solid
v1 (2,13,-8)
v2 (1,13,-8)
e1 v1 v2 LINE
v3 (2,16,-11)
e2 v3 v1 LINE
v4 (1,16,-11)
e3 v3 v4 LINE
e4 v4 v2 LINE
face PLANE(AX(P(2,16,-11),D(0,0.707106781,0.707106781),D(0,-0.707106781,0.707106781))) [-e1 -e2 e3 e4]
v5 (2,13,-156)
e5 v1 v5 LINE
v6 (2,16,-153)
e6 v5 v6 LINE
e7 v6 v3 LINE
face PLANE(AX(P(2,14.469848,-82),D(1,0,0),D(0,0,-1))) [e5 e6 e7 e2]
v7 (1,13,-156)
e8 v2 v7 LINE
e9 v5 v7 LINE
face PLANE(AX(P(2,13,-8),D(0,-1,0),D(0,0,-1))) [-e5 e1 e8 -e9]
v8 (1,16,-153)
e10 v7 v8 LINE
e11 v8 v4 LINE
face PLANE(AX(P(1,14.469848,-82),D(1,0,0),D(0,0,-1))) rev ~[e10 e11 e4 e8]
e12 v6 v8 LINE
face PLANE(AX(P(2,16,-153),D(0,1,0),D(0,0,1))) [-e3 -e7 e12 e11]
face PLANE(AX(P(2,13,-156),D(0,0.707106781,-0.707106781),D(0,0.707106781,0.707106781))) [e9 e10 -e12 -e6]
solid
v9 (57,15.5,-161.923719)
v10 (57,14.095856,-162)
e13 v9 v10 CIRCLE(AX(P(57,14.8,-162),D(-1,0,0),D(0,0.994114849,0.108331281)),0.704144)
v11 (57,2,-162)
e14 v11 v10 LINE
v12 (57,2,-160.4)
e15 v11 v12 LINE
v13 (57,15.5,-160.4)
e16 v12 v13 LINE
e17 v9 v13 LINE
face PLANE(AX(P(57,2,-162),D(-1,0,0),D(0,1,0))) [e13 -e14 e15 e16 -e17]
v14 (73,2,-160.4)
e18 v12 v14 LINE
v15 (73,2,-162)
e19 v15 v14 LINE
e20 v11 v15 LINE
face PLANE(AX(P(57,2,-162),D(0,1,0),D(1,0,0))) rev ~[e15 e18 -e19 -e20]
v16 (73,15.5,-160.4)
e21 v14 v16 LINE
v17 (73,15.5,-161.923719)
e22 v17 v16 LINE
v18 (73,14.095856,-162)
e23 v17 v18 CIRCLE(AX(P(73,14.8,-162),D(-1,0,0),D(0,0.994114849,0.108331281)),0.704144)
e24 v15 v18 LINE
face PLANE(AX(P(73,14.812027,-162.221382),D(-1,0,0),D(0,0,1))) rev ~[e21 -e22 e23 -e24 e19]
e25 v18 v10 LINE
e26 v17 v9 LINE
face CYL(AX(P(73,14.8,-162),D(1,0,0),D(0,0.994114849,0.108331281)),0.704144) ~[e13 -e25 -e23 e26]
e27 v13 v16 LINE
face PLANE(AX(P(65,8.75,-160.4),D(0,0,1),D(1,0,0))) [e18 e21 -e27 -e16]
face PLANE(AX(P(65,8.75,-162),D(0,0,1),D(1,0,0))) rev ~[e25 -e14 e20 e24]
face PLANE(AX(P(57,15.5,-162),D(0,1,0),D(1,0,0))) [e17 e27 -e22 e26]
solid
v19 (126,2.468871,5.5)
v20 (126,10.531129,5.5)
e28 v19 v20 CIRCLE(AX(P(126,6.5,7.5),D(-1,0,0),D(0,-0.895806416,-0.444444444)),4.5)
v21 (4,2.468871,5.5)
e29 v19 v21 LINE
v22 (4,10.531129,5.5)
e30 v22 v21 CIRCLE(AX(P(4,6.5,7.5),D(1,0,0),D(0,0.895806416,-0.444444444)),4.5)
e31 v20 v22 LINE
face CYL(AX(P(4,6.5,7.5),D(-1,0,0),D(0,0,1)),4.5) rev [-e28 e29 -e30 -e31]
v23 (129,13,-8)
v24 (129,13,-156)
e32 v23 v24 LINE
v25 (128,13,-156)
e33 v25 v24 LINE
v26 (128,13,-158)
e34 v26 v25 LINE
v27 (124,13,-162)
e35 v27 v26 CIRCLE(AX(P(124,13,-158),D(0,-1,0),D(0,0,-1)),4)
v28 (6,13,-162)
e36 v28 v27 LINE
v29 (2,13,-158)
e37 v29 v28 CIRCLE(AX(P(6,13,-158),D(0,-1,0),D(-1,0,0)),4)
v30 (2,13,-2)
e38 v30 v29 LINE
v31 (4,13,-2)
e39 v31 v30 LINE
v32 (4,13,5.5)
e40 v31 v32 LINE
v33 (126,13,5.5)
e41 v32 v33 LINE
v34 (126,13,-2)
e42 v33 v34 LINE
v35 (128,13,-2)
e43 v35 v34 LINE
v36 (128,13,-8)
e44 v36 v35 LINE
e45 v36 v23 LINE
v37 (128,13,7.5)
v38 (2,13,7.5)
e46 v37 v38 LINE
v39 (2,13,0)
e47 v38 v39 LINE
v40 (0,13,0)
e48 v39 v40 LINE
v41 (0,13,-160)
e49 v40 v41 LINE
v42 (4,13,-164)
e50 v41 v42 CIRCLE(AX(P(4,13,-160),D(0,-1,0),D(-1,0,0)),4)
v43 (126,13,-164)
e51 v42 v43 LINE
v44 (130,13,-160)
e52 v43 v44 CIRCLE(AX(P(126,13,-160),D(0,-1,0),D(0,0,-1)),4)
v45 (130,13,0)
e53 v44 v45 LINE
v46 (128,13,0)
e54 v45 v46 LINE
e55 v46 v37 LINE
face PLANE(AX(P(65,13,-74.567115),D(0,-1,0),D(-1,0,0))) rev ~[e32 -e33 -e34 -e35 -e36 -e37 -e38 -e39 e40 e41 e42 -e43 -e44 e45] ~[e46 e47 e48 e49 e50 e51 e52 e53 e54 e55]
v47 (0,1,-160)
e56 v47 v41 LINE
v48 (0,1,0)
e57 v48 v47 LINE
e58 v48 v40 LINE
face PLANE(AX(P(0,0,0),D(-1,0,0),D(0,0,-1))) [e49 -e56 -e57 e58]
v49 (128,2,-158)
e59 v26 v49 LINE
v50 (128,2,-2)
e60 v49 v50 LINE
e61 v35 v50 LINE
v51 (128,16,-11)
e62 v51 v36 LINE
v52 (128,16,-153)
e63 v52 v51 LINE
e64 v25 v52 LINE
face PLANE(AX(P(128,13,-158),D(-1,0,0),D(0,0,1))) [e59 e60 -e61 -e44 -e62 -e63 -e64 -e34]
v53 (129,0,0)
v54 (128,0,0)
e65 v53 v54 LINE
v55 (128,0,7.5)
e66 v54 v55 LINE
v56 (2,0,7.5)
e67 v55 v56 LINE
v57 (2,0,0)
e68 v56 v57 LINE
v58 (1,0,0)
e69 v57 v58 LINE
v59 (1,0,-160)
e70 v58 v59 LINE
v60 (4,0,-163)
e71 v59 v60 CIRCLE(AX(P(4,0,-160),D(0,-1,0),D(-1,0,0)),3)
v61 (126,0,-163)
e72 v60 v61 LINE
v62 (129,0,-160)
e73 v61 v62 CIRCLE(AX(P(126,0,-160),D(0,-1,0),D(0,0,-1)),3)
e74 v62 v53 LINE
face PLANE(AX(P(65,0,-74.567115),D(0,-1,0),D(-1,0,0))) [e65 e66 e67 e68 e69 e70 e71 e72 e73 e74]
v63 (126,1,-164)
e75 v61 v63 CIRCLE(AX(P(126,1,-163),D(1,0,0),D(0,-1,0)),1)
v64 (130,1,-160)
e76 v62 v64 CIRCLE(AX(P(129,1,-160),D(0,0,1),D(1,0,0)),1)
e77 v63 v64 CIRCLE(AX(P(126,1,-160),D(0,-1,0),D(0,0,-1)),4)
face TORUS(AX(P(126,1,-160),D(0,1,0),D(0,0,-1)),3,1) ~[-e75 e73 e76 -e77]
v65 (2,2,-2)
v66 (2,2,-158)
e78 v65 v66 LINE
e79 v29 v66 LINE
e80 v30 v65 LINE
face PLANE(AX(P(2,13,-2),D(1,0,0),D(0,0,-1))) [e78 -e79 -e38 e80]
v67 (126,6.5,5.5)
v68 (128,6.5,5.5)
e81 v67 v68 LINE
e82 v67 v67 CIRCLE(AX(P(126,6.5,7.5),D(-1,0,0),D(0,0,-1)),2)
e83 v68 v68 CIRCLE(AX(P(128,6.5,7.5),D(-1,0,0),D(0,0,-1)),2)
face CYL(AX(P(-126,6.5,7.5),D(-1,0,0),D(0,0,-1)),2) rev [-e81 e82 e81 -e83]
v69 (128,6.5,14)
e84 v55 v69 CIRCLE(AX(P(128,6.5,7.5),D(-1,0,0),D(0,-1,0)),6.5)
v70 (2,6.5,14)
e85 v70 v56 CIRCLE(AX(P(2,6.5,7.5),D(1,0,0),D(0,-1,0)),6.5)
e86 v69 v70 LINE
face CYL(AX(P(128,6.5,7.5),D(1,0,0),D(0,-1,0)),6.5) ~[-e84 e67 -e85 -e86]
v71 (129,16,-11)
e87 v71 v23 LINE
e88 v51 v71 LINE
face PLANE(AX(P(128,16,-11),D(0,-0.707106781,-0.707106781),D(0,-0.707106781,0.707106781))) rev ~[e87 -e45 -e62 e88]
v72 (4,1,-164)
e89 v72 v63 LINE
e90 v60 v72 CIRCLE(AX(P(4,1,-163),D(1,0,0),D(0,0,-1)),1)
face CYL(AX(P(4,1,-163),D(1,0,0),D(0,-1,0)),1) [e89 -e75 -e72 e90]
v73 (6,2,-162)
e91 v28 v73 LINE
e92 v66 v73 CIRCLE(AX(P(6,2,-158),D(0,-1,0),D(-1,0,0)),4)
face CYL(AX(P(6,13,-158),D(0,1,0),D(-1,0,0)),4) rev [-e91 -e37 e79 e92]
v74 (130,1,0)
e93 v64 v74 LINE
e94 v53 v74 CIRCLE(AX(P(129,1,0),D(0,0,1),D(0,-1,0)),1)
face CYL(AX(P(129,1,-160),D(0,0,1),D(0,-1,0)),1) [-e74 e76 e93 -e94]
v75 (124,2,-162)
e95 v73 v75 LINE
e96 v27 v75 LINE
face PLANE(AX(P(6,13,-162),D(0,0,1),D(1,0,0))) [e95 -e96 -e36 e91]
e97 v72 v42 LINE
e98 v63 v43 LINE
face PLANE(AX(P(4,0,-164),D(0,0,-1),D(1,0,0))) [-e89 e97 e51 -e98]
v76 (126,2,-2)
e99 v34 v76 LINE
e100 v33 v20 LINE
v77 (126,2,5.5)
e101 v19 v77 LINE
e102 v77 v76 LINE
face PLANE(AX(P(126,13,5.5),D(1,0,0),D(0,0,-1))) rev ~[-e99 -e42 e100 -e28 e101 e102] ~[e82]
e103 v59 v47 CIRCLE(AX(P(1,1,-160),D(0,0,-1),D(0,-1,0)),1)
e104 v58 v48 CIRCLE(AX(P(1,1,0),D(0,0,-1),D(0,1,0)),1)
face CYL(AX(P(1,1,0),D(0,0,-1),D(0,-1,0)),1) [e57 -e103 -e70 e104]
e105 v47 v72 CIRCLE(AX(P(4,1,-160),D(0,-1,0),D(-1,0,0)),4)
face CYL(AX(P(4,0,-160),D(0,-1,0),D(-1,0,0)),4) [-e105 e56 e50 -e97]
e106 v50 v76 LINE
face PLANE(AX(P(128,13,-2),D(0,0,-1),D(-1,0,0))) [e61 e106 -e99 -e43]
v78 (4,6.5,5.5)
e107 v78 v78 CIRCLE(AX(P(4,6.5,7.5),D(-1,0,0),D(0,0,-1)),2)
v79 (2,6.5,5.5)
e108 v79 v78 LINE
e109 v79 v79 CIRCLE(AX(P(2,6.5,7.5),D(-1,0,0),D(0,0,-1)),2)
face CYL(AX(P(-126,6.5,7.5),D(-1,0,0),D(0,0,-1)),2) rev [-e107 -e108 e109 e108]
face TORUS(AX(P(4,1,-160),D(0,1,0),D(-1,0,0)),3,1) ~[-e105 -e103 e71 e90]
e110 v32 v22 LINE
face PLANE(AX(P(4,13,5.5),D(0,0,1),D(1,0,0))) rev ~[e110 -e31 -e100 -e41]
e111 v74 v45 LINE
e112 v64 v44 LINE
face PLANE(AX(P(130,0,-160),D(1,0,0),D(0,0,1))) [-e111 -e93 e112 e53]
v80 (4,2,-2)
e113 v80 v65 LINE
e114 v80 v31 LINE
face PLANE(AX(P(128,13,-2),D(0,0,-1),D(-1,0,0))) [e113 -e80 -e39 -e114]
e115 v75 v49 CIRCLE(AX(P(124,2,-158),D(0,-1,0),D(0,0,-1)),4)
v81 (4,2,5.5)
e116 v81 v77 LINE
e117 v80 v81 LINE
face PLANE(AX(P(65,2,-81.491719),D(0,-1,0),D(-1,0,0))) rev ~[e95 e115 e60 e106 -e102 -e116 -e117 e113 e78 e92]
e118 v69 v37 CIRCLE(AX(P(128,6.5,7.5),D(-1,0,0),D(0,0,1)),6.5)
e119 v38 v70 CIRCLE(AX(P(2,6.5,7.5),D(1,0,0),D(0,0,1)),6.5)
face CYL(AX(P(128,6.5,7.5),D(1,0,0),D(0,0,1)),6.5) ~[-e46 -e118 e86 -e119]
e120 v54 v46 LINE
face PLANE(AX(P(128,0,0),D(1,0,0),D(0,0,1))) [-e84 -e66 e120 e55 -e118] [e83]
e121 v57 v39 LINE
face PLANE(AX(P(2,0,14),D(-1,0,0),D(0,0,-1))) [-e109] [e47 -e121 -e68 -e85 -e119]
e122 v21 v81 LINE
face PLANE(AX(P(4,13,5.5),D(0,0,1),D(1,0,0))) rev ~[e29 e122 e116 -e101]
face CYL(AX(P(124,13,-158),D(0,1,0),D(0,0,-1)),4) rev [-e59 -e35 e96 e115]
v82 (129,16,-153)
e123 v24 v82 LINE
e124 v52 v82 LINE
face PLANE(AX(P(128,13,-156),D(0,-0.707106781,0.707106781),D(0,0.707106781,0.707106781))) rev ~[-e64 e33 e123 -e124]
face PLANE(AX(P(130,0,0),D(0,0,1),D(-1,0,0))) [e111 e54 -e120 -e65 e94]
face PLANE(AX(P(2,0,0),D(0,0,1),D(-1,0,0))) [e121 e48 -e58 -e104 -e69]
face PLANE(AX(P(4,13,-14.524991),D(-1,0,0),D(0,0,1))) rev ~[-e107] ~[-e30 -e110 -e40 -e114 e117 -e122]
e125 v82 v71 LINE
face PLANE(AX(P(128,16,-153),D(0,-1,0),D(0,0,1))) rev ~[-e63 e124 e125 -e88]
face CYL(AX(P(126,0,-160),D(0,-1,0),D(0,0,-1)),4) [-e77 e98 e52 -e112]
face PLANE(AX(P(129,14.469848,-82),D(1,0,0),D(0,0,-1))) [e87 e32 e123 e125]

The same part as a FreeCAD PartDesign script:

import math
import FreeCAD as App
import Part
import Sketcher
Q = App.Units.Quantity


def edges_at(feature, points):
    """Names of the edges that pass closest to the given points."""
    edges = feature.Shape.Edges
    near = lambda p: min(range(len(edges)), key=lambda i: edges[i].distToShape(Part.Vertex(*p))[0])
    return sorted({f"Edge{near(p) + 1}" for p in points})


def add_polygon(sketch, points):
    """Adds a closed chain of lines whose ends are joined by coincident constraints."""
    first, n = sketch.GeometryCount, len(points)
    for a, b in zip(points, points[1:] + points[:1]):
        sketch.addGeometry(Part.LineSegment(App.Vector(*a, 0), App.Vector(*b, 0)), False)
    for i in range(n):
        sketch.addConstraint(Sketcher.Constraint("Coincident", first + i, 2, first + (i + 1) % n, 1))

doc = App.newDocument("Part")
body = doc.addObject("PartDesign::Body", "Body")

# Sketch on XZ plane
sketch1 = body.newObject("Sketcher::SketchObject", "Sketch")
sketch1.AttachmentSupport = (doc.getObject("XZ_Plane"), [""])
sketch1.MapMode = "FlatFace"
sketch1.addGeometry([
    Part.LineSegment(App.Vector(128, 0, 0), App.Vector(130, 0, 0)),  # 0
    Part.LineSegment(App.Vector(130, 0, 0), App.Vector(130, -160, 0)),  # 1
    Part.ArcOfCircle(Part.Circle(App.Vector(126, -160, 0), App.Vector(0, 0, 1), 4), math.radians(-90), math.radians(0)),  # 2
    Part.LineSegment(App.Vector(126, -164, 0), App.Vector(4, -164, 0)),  # 3
    Part.ArcOfCircle(Part.Circle(App.Vector(4, -160, 0), App.Vector(0, 0, 1), 4), math.radians(180), math.radians(270)),  # 4
    Part.LineSegment(App.Vector(0, -160, 0), App.Vector(0, 0, 0)),  # 5
    Part.LineSegment(App.Vector(0, 0, 0), App.Vector(2, 0, 0)),  # 6
    Part.LineSegment(App.Vector(2, 0, 0), App.Vector(2, 14, 0)),  # 7
    Part.LineSegment(App.Vector(2, 14, 0), App.Vector(128, 14, 0)),  # 8
    Part.LineSegment(App.Vector(128, 14, 0), App.Vector(128, 0, 0)),  # 9
], False)
sketch1.addConstraint([
    Sketcher.Constraint("Coincident", 0, 2, 1, 1),
    Sketcher.Constraint("Tangent", 1, 2, 2, 2),
    Sketcher.Constraint("Tangent", 2, 1, 3, 1),
    Sketcher.Constraint("Tangent", 3, 2, 4, 2),
    Sketcher.Constraint("Tangent", 4, 1, 5, 1),
    Sketcher.Constraint("Coincident", 5, 2, 6, 1),
    Sketcher.Constraint("Coincident", 6, 2, 7, 1),
    Sketcher.Constraint("Coincident", 7, 2, 8, 1),
    Sketcher.Constraint("Coincident", 8, 2, 9, 1),
    Sketcher.Constraint("Coincident", 9, 2, 0, 1),
    Sketcher.Constraint("Horizontal", 0),
    Sketcher.Constraint("Vertical", 1),
    Sketcher.Constraint("Horizontal", 3),
    Sketcher.Constraint("Vertical", 5),
    Sketcher.Constraint("Horizontal", 6),
    Sketcher.Constraint("Vertical", 7),
    Sketcher.Constraint("Horizontal", 8),
    Sketcher.Constraint("Vertical", 9),
    Sketcher.Constraint("Coincident", 5, 2, -1, 1),
    Sketcher.Constraint("Equal", 2, 4),
    Sketcher.Constraint("PointOnObject", 0, 2, -1),
    Sketcher.Constraint("Equal", 0, 6),
    Sketcher.Constraint("Radius", 2, Q("4 mm")),
    Sketcher.Constraint("DistanceX", 0, 1, 0, 2, Q("2 mm")),
    Sketcher.Constraint("DistanceX", 3, 2, 3, 1, Q("122 mm")),
    Sketcher.Constraint("DistanceY", 1, 2, 1, 1, Q("160 mm")),
    Sketcher.Constraint("DistanceY", 7, 1, 7, 2, Q("14 mm")),
])
pad1 = body.newObject("PartDesign::Pad", "Pad")
pad1.Profile = sketch1
pad1.Length = 13
pad1.Reversed = True

# Sketch on XZ plane
sketch2 = body.newObject("Sketcher::SketchObject", "Sketch001")
sketch2.AttachmentSupport = (doc.getObject("XZ_Plane"), [""])
sketch2.MapMode = "FlatFace"
sketch2.AttachmentOffset = App.Placement(App.Vector(0, 0, -13), App.Rotation())
sketch2.addGeometry([
    Part.ArcOfCircle(Part.Circle(App.Vector(124, -158, 0), App.Vector(0, 0, 1), 4), math.radians(-90), math.radians(0)),  # 0
    Part.LineSegment(App.Vector(124, -162, 0), App.Vector(6, -162, 0)),  # 1
    Part.ArcOfCircle(Part.Circle(App.Vector(6, -158, 0), App.Vector(0, 0, 1), 4), math.radians(180), math.radians(270)),  # 2
    Part.LineSegment(App.Vector(2, -158, 0), App.Vector(2, -2, 0)),  # 3
    Part.LineSegment(App.Vector(2, -2, 0), App.Vector(128, -2, 0)),  # 4
    Part.LineSegment(App.Vector(128, -2, 0), App.Vector(128, -158, 0)),  # 5
], False)
sketch2.addConstraint([
    Sketcher.Constraint("Tangent", 0, 1, 1, 1),
    Sketcher.Constraint("Tangent", 1, 2, 2, 2),
    Sketcher.Constraint("Tangent", 2, 1, 3, 1),
    Sketcher.Constraint("Coincident", 3, 2, 4, 1),
    Sketcher.Constraint("Coincident", 4, 2, 5, 1),
    Sketcher.Constraint("Tangent", 5, 2, 0, 2),
    Sketcher.Constraint("Horizontal", 1),
    Sketcher.Constraint("Vertical", 3),
    Sketcher.Constraint("Horizontal", 4),
    Sketcher.Constraint("Vertical", 5),
    Sketcher.Constraint("Equal", 0, 2),
    Sketcher.Constraint("Radius", 0, Q("4 mm")),
    Sketcher.Constraint("DistanceX", 1, 2, 1, 1, Q("118 mm")),
    Sketcher.Constraint("DistanceY", 3, 1, 3, 2, Q("156 mm")),
    Sketcher.Constraint("DistanceX", -1, 1, 0, 3, Q("124 mm")),
    Sketcher.Constraint("DistanceY", 0, 3, -1, 1, Q("158 mm")),
])
pocket1 = body.newObject("PartDesign::Pocket", "Pocket")
pocket1.Profile = sketch2
pocket1.Length = 11
pocket1.Reversed = True

# Sketch on YZ plane
sketch3 = body.newObject("Sketcher::SketchObject", "Sketch002")
sketch3.AttachmentSupport = (doc.getObject("YZ_Plane"), [""])
sketch3.MapMode = "FlatFace"
sketch3.AttachmentOffset = App.Placement(App.Vector(0, 0, 128), App.Rotation())
sketch3.addGeometry([
    Part.ArcOfCircle(Part.Circle(App.Vector(7, 8, 0), App.Vector(0, 0, 1), 6), math.radians(0), math.radians(90)),  # 0
    Part.LineSegment(App.Vector(13, 8, 0), App.Vector(13, 14, 0)),  # 1
    Part.LineSegment(App.Vector(13, 14, 0), App.Vector(6, 14, 0)),  # 2
    Part.LineSegment(App.Vector(0, 14, 0), App.Vector(0, 8, 0)),  # 3
    Part.ArcOfCircle(Part.Circle(App.Vector(6, 8, 0), App.Vector(0, 0, 1), 6), math.radians(90), math.radians(180)),  # 4
    Part.LineSegment(App.Vector(6, 14, 0), App.Vector(0, 14, 0)),  # 5
], False)
sketch3.addConstraint([
    Sketcher.Constraint("Tangent", 0, 1, 1, 1),
    Sketcher.Constraint("Coincident", 1, 2, 2, 1),
    Sketcher.Constraint("Tangent", 2, 2, 0, 2),
    Sketcher.Constraint("Tangent", 3, 2, 4, 2),
    Sketcher.Constraint("Tangent", 4, 1, 5, 1),
    Sketcher.Constraint("Coincident", 5, 2, 3, 1),
    Sketcher.Constraint("Vertical", 1),
    Sketcher.Constraint("Horizontal", 2),
    Sketcher.Constraint("Vertical", 3),
    Sketcher.Constraint("Horizontal", 5),
    Sketcher.Constraint("Coincident", 4, 3, 0, 3),
    Sketcher.Constraint("Equal", 0, 4),
    Sketcher.Constraint("PointOnObject", 3, 2, -2),
    Sketcher.Constraint("Radius", 0, Q("6.5 mm")),
    Sketcher.Constraint("DistanceY", -1, 1, 1, 2, Q("14 mm")),
])
pocket2 = body.newObject("PartDesign::Pocket", "Pocket001")
pocket2.Profile = sketch3
pocket2.Length = 140

# Sketch on YZ plane
sketch4 = body.newObject("Sketcher::SketchObject", "Sketch003")
sketch4.AttachmentSupport = (doc.getObject("YZ_Plane"), [""])
sketch4.MapMode = "FlatFace"
sketch4.AttachmentOffset = App.Placement(App.Vector(0, 0, 4), App.Rotation())
sketch4.addGeometry(Part.Circle(App.Vector(6.5, 7.5, 0), App.Vector(0, 0, 1), 4.5), False)
sketch4.addConstraint([
    Sketcher.Constraint("Diameter", 0, Q("9 mm")),
    Sketcher.Constraint("DistanceX", -1, 1, 0, 3, Q("6.5 mm")),
    Sketcher.Constraint("DistanceY", -1, 1, 0, 3, Q("7.5 mm")),
])
pocket3 = body.newObject("PartDesign::Pocket", "Pocket002")
pocket3.Profile = sketch4
pocket3.Length = 122
pocket3.Reversed = True

# Sketch on XZ plane
sketch5 = body.newObject("Sketcher::SketchObject", "Sketch004")
sketch5.AttachmentSupport = (doc.getObject("XZ_Plane"), [""])
sketch5.MapMode = "FlatFace"
sketch5.AttachmentOffset = App.Placement(App.Vector(0, 0, -13), App.Rotation())
add_polygon(sketch5, [(4, 6), (126, 6), (126, -15), (4, -15)])  # lines 0-3
sketch5.addConstraint([
    Sketcher.Constraint("Horizontal", 0),
    Sketcher.Constraint("Vertical", 1),
    Sketcher.Constraint("Horizontal", 2),
    Sketcher.Constraint("Vertical", 3),
    Sketcher.Constraint("DistanceX", 0, 1, 0, 2, Q("122 mm")),
    Sketcher.Constraint("DistanceX", -1, 1, 0, 2, Q("126 mm")),
    Sketcher.Constraint("DistanceY", -1, 1, 0, 2, Q("5.5 mm")),
    Sketcher.Constraint("DistanceY", 1, 2, 1, 1, Q("20.024991 mm")),
])
pocket4 = body.newObject("PartDesign::Pocket", "Pocket003")
pocket4.Profile = sketch5
pocket4.Length = 11
pocket4.Reversed = True

# Sketch on YZ plane
sketch6 = body.newObject("Sketcher::SketchObject", "Sketch005")
sketch6.AttachmentSupport = (doc.getObject("YZ_Plane"), [""])
sketch6.MapMode = "FlatFace"
sketch6.AttachmentOffset = App.Placement(App.Vector(0, 0, 4), App.Rotation())
sketch6.addGeometry(Part.Circle(App.Vector(6.5, 7.5, 0), App.Vector(0, 0, 1), 2), False)
sketch6.addConstraint([
    Sketcher.Constraint("Diameter", 0, Q("4 mm")),
    Sketcher.Constraint("DistanceX", -1, 1, 0, 3, Q("6.5 mm")),
    Sketcher.Constraint("DistanceY", -1, 1, 0, 3, Q("7.5 mm")),
])
pocket5 = body.newObject("PartDesign::Pocket", "Pocket004")
pocket5.Profile = sketch6
pocket5.Type = "ThroughAll"
pocket5.Midplane = True
doc.recompute()

fillet = body.newObject("PartDesign::Fillet", "Fillet")
fillet.Base = (pocket5, edges_at(pocket5, [
    (128.828, 0, -162.828),
    (130, 0, -80),
    (0, 0, -80),
    (1.172, 0, -162.828),
    (65, 0, -164),
]))
fillet.Radius = 1

# Sketch on YZ plane
sketch7 = body.newObject("Sketcher::SketchObject", "Sketch006")
sketch7.AttachmentSupport = (doc.getObject("YZ_Plane"), [""])
sketch7.MapMode = "FlatFace"
sketch7.AttachmentOffset = App.Placement(App.Vector(0, 0, 128), App.Rotation())
add_polygon(sketch7, [(13, -156), (16, -153), (16, -11), (13, -8)])  # lines 0-3
sketch7.addConstraint([
    Sketcher.Constraint("Vertical", 1),
    Sketcher.Constraint("Vertical", 3),
    Sketcher.Constraint("Perpendicular", 0, 2),
    Sketcher.Constraint("Equal", 0, 2),
    Sketcher.Constraint("DistanceY", 1, 1, 1, 2, Q("142 mm")),
    Sketcher.Constraint("DistanceY", 3, 2, 3, 1, Q("148 mm")),
    Sketcher.Constraint("DistanceX", -1, 1, 0, 2, Q("16 mm")),
    Sketcher.Constraint("DistanceY", 0, 2, -1, 1, Q("153 mm")),
])
pad2 = body.newObject("PartDesign::Pad", "Pad001")
pad2.Profile = sketch7
pad2.Length = 1
body2 = doc.addObject("PartDesign::Body", "Body001")

# Sketch on XY plane
sketch8 = body2.newObject("Sketcher::SketchObject", "Sketch007")
sketch8.AttachmentSupport = (doc.getObject("XY_Plane001"), [""])
sketch8.MapMode = "FlatFace"
sketch8.AttachmentOffset = App.Placement(App.Vector(0, 0, -162), App.Rotation())
add_polygon(sketch8, [(57, 16), (57, 2), (73, 2), (73, 16)])  # lines 0-3
sketch8.addConstraint([
    Sketcher.Constraint("Vertical", 0),
    Sketcher.Constraint("Horizontal", 1),
    Sketcher.Constraint("Vertical", 2),
    Sketcher.Constraint("Horizontal", 3),
    Sketcher.Constraint("DistanceX", 1, 1, 1, 2, Q("16 mm")),
    Sketcher.Constraint("DistanceY", 0, 2, 0, 1, Q("13.5 mm")),
    Sketcher.Constraint("DistanceX", -1, 1, 0, 2, Q("57 mm")),
    Sketcher.Constraint("DistanceY", -1, 1, 0, 2, Q("2 mm")),
])
pad3 = body2.newObject("PartDesign::Pad", "Pad002")
pad3.Profile = sketch8
pad3.Length = 1.6

# Sketch on YZ plane
sketch9 = body2.newObject("Sketcher::SketchObject", "Sketch008")
sketch9.AttachmentSupport = (doc.getObject("YZ_Plane001"), [""])
sketch9.MapMode = "FlatFace"
sketch9.AttachmentOffset = App.Placement(App.Vector(0, 0, 73), App.Rotation())
sketch9.addGeometry([
    Part.LineSegment(App.Vector(15.5, -161.9, 0), App.Vector(14.1, -162, 0)),
    Part.ArcOfCircle(Part.Circle(App.Vector(14.8, -162, 0), App.Vector(0, 0, 1), 0.7), math.radians(180), math.radians(366)),
], False)
sketch9.addConstraint([
    Sketcher.Constraint("Coincident", 0, 1, 1, 2),
    Sketcher.Constraint("Coincident", 1, 1, 0, 2),
    Sketcher.Constraint("DistanceY", 1, 3, -1, 1, Q("162 mm")),
    Sketcher.Constraint("DistanceY", 1, 1, -1, 1, Q("162 mm")),
    Sketcher.Constraint("DistanceX", -1, 1, 1, 3, Q("14.8 mm")),
    Sketcher.Constraint("DistanceX", -1, 1, 0, 1, Q("15.5 mm")),
    Sketcher.Constraint("Radius", 1, Q("0.704144 mm")),
])
pad4 = body2.newObject("PartDesign::Pad", "Pad003")
pad4.Profile = sketch9
pad4.Length = 16
pad4.Reversed = True
body3 = doc.addObject("PartDesign::Body", "Body002")

# Sketch on YZ plane
sketch10 = body3.newObject("Sketcher::SketchObject", "Sketch009")
sketch10.AttachmentSupport = (doc.getObject("YZ_Plane002"), [""])
sketch10.MapMode = "FlatFace"
sketch10.AttachmentOffset = App.Placement(App.Vector(0, 0, 2), App.Rotation())
add_polygon(sketch10, [(16, -153), (16, -11), (13, -8), (13, -156)])  # lines 0-3
sketch10.addConstraint([
    Sketcher.Constraint("Vertical", 0),
    Sketcher.Constraint("Vertical", 2),
    Sketcher.Constraint("Perpendicular", 1, 3),
    Sketcher.Constraint("Equal", 1, 3),
    Sketcher.Constraint("DistanceY", 0, 1, 0, 2, Q("142 mm")),
    Sketcher.Constraint("DistanceY", 2, 2, 2, 1, Q("148 mm")),
    Sketcher.Constraint("DistanceX", -1, 1, 0, 2, Q("16 mm")),
    Sketcher.Constraint("DistanceY", 0, 2, -1, 1, Q("11 mm")),
])
pad5 = body3.newObject("PartDesign::Pad", "Pad004")
pad5.Profile = sketch10
pad5.Length = 1
pad5.Reversed = True

doc.recompute()
